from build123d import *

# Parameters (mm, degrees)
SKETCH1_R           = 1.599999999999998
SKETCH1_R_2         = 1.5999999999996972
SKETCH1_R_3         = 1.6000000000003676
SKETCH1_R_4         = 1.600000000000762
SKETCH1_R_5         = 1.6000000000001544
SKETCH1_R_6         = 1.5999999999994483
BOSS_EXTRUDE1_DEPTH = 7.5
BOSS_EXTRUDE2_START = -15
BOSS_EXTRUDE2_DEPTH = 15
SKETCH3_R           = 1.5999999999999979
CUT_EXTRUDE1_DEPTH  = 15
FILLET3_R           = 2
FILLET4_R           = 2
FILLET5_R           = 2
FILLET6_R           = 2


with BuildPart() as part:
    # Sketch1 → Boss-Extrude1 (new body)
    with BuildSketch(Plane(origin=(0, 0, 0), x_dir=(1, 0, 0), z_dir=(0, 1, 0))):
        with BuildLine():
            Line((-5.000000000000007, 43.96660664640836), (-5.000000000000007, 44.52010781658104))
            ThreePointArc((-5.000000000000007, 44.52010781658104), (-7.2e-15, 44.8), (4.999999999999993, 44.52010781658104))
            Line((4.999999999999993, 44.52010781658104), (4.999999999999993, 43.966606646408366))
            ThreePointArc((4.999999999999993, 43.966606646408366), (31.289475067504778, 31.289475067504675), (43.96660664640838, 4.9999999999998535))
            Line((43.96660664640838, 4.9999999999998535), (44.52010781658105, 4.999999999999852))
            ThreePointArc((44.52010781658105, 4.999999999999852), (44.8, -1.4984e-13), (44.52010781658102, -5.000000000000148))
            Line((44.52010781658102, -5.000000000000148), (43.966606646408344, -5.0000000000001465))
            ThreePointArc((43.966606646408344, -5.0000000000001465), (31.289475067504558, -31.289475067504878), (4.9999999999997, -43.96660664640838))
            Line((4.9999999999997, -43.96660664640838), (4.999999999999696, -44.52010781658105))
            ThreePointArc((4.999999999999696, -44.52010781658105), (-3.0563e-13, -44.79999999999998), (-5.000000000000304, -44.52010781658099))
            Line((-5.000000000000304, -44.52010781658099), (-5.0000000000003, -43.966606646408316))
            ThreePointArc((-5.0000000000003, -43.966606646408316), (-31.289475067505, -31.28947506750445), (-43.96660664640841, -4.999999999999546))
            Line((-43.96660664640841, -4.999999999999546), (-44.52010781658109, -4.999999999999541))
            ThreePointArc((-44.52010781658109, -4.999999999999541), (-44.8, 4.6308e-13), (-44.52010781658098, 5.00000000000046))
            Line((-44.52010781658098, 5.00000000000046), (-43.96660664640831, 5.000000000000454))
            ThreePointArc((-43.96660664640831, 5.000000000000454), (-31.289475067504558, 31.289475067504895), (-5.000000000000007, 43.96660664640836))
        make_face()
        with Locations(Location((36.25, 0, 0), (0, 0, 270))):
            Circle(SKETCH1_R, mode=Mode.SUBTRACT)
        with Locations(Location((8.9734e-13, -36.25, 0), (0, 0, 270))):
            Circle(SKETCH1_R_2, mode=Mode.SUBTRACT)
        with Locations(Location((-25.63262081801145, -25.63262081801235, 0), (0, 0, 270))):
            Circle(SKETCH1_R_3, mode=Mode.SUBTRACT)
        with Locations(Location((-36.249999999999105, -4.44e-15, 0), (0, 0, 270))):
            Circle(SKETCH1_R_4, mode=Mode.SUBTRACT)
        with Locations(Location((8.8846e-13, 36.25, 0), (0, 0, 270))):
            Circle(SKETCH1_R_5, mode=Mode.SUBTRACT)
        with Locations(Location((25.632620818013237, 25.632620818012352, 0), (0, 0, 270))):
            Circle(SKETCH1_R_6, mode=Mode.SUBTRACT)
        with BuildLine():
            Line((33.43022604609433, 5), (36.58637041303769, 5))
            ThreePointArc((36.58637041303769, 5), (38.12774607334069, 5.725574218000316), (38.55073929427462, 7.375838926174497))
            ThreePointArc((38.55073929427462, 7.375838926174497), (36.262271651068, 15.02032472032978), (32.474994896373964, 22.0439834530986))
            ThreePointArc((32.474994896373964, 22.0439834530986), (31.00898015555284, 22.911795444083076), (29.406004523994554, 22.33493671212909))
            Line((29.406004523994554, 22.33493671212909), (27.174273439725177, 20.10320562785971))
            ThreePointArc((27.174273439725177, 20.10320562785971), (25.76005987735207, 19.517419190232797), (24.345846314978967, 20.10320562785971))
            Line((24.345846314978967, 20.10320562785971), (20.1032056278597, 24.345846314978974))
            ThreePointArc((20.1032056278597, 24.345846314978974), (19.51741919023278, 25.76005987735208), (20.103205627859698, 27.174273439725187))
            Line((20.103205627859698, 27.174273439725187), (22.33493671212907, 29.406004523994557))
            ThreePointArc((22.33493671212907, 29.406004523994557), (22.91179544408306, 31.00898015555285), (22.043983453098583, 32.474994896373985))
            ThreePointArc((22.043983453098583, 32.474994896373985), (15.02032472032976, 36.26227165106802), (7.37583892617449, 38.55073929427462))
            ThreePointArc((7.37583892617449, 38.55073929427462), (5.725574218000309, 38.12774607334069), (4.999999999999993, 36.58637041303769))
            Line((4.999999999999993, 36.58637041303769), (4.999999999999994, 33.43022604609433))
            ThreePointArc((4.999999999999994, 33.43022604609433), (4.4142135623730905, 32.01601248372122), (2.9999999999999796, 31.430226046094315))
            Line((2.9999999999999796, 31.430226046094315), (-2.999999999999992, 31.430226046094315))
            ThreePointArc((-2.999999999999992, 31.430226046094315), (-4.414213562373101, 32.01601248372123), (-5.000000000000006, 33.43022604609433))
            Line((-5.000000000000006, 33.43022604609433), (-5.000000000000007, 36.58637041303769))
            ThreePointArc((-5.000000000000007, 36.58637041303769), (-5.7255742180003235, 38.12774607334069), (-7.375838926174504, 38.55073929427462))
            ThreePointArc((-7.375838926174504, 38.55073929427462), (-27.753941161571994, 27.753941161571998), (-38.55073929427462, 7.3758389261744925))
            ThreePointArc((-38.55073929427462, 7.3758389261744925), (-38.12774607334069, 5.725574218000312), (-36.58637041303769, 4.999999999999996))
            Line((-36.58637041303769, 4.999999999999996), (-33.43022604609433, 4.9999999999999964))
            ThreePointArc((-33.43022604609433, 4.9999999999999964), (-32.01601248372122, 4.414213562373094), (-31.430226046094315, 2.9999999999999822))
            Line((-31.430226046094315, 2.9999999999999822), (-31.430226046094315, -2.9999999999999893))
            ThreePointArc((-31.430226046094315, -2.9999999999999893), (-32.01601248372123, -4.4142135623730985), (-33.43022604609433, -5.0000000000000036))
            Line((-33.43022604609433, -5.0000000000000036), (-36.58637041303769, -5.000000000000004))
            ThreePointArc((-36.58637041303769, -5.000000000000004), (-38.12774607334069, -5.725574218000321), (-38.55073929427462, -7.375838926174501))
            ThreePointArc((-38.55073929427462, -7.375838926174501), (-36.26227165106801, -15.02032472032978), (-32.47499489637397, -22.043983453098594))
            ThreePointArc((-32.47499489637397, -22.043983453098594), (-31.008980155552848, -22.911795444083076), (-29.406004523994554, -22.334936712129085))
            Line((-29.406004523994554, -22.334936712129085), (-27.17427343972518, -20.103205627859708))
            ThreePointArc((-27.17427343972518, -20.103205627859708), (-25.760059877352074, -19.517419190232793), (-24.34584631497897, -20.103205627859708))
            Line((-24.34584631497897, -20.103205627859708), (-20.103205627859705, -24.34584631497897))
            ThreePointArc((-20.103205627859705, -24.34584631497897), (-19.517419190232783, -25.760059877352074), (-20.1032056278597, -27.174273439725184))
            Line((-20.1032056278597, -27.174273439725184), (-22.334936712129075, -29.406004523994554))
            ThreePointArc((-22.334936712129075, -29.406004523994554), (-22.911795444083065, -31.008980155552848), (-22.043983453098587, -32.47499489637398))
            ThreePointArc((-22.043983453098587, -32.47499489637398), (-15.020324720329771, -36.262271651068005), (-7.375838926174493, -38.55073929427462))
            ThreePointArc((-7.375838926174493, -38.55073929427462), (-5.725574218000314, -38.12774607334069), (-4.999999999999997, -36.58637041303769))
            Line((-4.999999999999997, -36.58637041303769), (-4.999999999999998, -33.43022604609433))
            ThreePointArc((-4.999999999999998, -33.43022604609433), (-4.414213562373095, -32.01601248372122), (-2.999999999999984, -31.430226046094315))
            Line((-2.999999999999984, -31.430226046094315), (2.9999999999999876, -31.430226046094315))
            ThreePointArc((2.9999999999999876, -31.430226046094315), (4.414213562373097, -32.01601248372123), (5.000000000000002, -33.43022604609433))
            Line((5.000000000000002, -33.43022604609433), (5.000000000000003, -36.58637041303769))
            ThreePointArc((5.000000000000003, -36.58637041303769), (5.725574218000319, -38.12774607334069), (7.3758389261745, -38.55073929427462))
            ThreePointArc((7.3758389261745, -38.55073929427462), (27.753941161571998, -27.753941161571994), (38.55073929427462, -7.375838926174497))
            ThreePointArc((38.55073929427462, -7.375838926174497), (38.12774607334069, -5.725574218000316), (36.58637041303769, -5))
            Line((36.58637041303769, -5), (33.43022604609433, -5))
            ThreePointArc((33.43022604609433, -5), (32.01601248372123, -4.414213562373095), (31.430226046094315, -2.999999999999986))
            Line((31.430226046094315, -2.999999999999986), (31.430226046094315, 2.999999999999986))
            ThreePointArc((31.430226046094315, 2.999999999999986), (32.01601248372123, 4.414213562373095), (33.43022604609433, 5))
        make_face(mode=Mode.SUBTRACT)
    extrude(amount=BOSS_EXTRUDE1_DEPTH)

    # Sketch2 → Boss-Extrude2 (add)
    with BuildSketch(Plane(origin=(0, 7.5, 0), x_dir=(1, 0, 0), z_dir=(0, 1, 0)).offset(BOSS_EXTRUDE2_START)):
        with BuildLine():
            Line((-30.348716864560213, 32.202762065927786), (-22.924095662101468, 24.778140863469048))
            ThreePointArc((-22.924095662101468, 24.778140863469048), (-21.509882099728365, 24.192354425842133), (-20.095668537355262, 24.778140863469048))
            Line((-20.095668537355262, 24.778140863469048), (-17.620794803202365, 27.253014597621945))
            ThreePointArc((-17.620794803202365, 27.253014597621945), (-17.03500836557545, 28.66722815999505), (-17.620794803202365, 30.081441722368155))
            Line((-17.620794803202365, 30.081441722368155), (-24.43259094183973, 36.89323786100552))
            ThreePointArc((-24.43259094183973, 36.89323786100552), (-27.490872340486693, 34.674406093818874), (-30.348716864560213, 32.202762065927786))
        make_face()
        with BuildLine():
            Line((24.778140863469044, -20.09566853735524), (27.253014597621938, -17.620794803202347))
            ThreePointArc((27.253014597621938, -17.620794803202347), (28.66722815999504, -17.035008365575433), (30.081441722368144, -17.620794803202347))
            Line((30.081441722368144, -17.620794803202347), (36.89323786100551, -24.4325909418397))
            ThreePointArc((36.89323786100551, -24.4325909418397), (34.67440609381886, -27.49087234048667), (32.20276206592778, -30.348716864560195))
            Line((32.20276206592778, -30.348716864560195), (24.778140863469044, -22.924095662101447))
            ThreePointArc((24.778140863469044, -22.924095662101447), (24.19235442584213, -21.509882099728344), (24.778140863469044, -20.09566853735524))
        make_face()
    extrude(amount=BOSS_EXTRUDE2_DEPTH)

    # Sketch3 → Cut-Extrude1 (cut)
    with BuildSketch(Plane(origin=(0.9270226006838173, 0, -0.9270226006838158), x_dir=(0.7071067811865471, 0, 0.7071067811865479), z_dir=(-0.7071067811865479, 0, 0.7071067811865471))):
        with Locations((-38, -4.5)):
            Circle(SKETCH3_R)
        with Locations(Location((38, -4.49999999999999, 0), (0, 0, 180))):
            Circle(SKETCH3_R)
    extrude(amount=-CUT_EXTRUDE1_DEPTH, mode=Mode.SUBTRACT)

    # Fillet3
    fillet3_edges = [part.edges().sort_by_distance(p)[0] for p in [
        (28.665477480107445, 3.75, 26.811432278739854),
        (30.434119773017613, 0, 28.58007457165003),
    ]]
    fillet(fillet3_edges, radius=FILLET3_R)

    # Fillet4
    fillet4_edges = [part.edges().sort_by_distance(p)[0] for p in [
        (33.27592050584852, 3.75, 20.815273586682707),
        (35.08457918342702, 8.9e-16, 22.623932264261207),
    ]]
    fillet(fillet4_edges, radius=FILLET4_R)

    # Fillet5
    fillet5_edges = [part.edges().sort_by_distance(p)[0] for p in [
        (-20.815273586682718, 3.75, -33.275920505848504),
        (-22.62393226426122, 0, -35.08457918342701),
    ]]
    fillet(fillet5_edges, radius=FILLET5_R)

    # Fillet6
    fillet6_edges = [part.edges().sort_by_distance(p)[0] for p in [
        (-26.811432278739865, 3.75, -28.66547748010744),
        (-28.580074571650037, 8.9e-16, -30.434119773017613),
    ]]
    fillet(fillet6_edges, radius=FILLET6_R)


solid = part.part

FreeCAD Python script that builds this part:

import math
import FreeCAD as App
import Part
import Sketcher


def edges_at(feature, points):
    """Names of the edges that pass closest to the given points."""
    edges = feature.Shape.Edges
    near = lambda p: min(range(len(edges)), key=lambda i: edges[i].distToShape(Part.Vertex(*p))[0])
    return sorted({f"Edge{near(p) + 1}" for p in points})

doc = App.newDocument("Part")
body = doc.addObject("PartDesign::Body", "Body")

# Sketch on XZ plane
sketch1 = doc.addObject("Sketcher::SketchObject", "Sketch")
body.addObject(sketch1)
sketch1.AttachmentSupport = (doc.XZ_Plane, [""])
sketch1.MapMode = "FlatFace"
sketch1.addGeometry([
    Part.LineSegment(App.Vector(-5, -44.5, 0), App.Vector(-5, -44, 0)),  # 0
    Part.ArcOfCircle(Part.Circle(App.Vector(0, 0, 0), App.Vector(0, 0, 1), 44.2), math.radians(-174), math.radians(-96)),  # 1
    Part.LineSegment(App.Vector(-44, -5, 0), App.Vector(-44.5, -5, 0)),  # 2
    Part.ArcOfCircle(Part.Circle(App.Vector(0, 0, 0), App.Vector(0, 0, 1), 44.8), math.radians(173.59), math.radians(186.41)),  # 3
    Part.LineSegment(App.Vector(-44.5, 5, 0), App.Vector(-44, 5, 0)),  # 4
    Part.ArcOfCircle(Part.Circle(App.Vector(0, 0, 0), App.Vector(0, 0, 1), 44.2), math.radians(96), math.radians(174)),  # 5
    Part.LineSegment(App.Vector(-5, 44, 0), App.Vector(-5, 44.5, 0)),  # 6
    Part.ArcOfCircle(Part.Circle(App.Vector(0, 0, 0), App.Vector(0, 0, 1), 44.8), math.radians(83.59), math.radians(96.41)),  # 7
    Part.LineSegment(App.Vector(5, 44.5, 0), App.Vector(5, 44, 0)),  # 8
    Part.ArcOfCircle(Part.Circle(App.Vector(0, 0, 0), App.Vector(0, 0, 1), 44.2), math.radians(6), math.radians(84)),  # 9
    Part.LineSegment(App.Vector(44, 5, 0), App.Vector(44.5, 5, 0)),  # 10
    Part.ArcOfCircle(Part.Circle(App.Vector(0, 0, 0), App.Vector(0, 0, 1), 44.8), math.radians(-6.41), math.radians(6.41)),  # 11
    Part.LineSegment(App.Vector(44.5, -5, 0), App.Vector(44, -5, 0)),  # 12
    Part.ArcOfCircle(Part.Circle(App.Vector(0, 0, 0), App.Vector(0, 0, 1), 44.2), math.radians(-84), math.radians(-6)),  # 13
    Part.LineSegment(App.Vector(5, -44, 0), App.Vector(5, -44.5, 0)),  # 14
    Part.ArcOfCircle(Part.Circle(App.Vector(0, 0, 0), App.Vector(0, 0, 1), 44.8), math.radians(-96.41), math.radians(-83.59)),  # 15
    Part.Circle(App.Vector(0, 36.2, 0), App.Vector(0, 0, 1), 1.6),  # 16
    Part.Circle(App.Vector(-25.6, 25.6, 0), App.Vector(0, 0, 1), 1.6),  # 17
    Part.Circle(App.Vector(-36.2, 0, 0), App.Vector(0, 0, 1), 1.6),  # 18
    Part.Circle(App.Vector(36.2, 0, 0), App.Vector(0, 0, 1), 1.6),  # 19
    Part.Circle(App.Vector(25.6, -25.6, 0), App.Vector(0, 0, 1), 1.6),  # 20
    Part.Circle(App.Vector(0, -36.2, 0), App.Vector(0, 0, 1), 1.6),  # 21
    Part.ArcOfCircle(Part.Circle(App.Vector(33.4, -3, 0), App.Vector(0, 0, 1), 2), math.radians(180), math.radians(270)),  # 22
    Part.LineSegment(App.Vector(31.4, -3, 0), App.Vector(31.4, 3, 0)),  # 23
    Part.ArcOfCircle(Part.Circle(App.Vector(33.4, 3, 0), App.Vector(0, 0, 1), 2), math.radians(90), math.radians(180)),  # 24
    Part.LineSegment(App.Vector(33.4, 5, 0), App.Vector(36.6, 5, 0)),  # 25
    Part.ArcOfCircle(Part.Circle(App.Vector(36.6, 7, 0), App.Vector(0, 0, 1), 2), math.radians(-90), math.radians(11)),  # 26
    Part.ArcOfCircle(Part.Circle(App.Vector(0, 0, 0), App.Vector(0, 0, 1), 39.2), math.radians(11), math.radians(79)),  # 27
    Part.ArcOfCircle(Part.Circle(App.Vector(7, 36.6, 0), App.Vector(0, 0, 1), 2), math.radians(79), math.radians(180)),  # 28
    Part.LineSegment(App.Vector(5, 36.6, 0), App.Vector(5, 33.4, 0)),  # 29
    Part.ArcOfCircle(Part.Circle(App.Vector(3, 33.4, 0), App.Vector(0, 0, 1), 2), math.radians(-90), math.radians(0)),  # 30
    Part.LineSegment(App.Vector(3, 31.4, 0), App.Vector(-3, 31.4, 0)),  # 31
    Part.ArcOfCircle(Part.Circle(App.Vector(-3, 33.4, 0), App.Vector(0, 0, 1), 2), math.radians(180), math.radians(270)),  # 32
    Part.LineSegment(App.Vector(-5, 33.4, 0), App.Vector(-5, 36.6, 0)),  # 33
    Part.ArcOfCircle(Part.Circle(App.Vector(-7, 36.6, 0), App.Vector(0, 0, 1), 2), math.radians(0), math.radians(101)),  # 34
    Part.ArcOfCircle(Part.Circle(App.Vector(0, 0, 0), App.Vector(0, 0, 1), 39.2), math.radians(101), math.radians(124)),  # 35
    Part.ArcOfCircle(Part.Circle(App.Vector(-20.9, 30.8, 0), App.Vector(0, 0, 1), 2), math.radians(124), math.radians(225)),  # 36
    Part.LineSegment(App.Vector(-22.3, 29.4, 0), App.Vector(-20.1, 27.2, 0)),  # 37
    Part.ArcOfCircle(Part.Circle(App.Vector(-21.5, 25.8, 0), App.Vector(0, 0, 1), 2), math.radians(-45), math.radians(45)),  # 38
    Part.LineSegment(App.Vector(-20.1, 24.3, 0), App.Vector(-24.3, 20.1, 0)),  # 39
    Part.ArcOfCircle(Part.Circle(App.Vector(-25.8, 21.5, 0), App.Vector(0, 0, 1), 2), math.radians(-135), math.radians(-45)),  # 40
    Part.LineSegment(App.Vector(-27.2, 20.1, 0), App.Vector(-29.4, 22.3, 0)),  # 41
    Part.ArcOfCircle(Part.Circle(App.Vector(-30.8, 20.9, 0), App.Vector(0, 0, 1), 2), math.radians(45), math.radians(146)),  # 42
    Part.ArcOfCircle(Part.Circle(App.Vector(0, 0, 0), App.Vector(0, 0, 1), 39.2), math.radians(146), math.radians(169)),  # 43
    Part.ArcOfCircle(Part.Circle(App.Vector(-36.6, 7, 0), App.Vector(0, 0, 1), 2), math.radians(169), math.radians(270)),  # 44
    Part.LineSegment(App.Vector(-36.6, 5, 0), App.Vector(-33.4, 5, 0)),  # 45
    Part.ArcOfCircle(Part.Circle(App.Vector(-33.4, 3, 0), App.Vector(0, 0, 1), 2), math.radians(0), math.radians(90)),  # 46
    Part.LineSegment(App.Vector(-31.4, 3, 0), App.Vector(-31.4, -3, 0)),  # 47
    Part.ArcOfCircle(Part.Circle(App.Vector(-33.4, -3, 0), App.Vector(0, 0, 1), 2), math.radians(-90), math.radians(0)),  # 48
    Part.LineSegment(App.Vector(-33.4, -5, 0), App.Vector(-36.6, -5, 0)),  # 49
    Part.ArcOfCircle(Part.Circle(App.Vector(-36.6, -7, 0), App.Vector(0, 0, 1), 2), math.radians(90), math.radians(191)),  # 50
    Part.ArcOfCircle(Part.Circle(App.Vector(0, 0, 0), App.Vector(0, 0, 1), 39.2), math.radians(-169), math.radians(-101)),  # 51
    Part.ArcOfCircle(Part.Circle(App.Vector(-7, -36.6, 0), App.Vector(0, 0, 1), 2), math.radians(-101), math.radians(0)),  # 52
    Part.LineSegment(App.Vector(-5, -36.6, 0), App.Vector(-5, -33.4, 0)),  # 53
    Part.ArcOfCircle(Part.Circle(App.Vector(-3, -33.4, 0), App.Vector(0, 0, 1), 2), math.radians(90), math.radians(180)),  # 54
    Part.LineSegment(App.Vector(-3, -31.4, 0), App.Vector(3, -31.4, 0)),  # 55
    Part.ArcOfCircle(Part.Circle(App.Vector(3, -33.4, 0), App.Vector(0, 0, 1), 2), math.radians(0), math.radians(90)),  # 56
    Part.LineSegment(App.Vector(5, -33.4, 0), App.Vector(5, -36.6, 0)),  # 57
    Part.ArcOfCircle(Part.Circle(App.Vector(7, -36.6, 0), App.Vector(0, 0, 1), 2), math.radians(180), math.radians(281)),  # 58
    Part.ArcOfCircle(Part.Circle(App.Vector(0, 0, 0), App.Vector(0, 0, 1), 39.2), math.radians(-79), math.radians(-56)),  # 59
    Part.ArcOfCircle(Part.Circle(App.Vector(20.9, -30.8, 0), App.Vector(0, 0, 1), 2), math.radians(-56), math.radians(45)),  # 60
    Part.LineSegment(App.Vector(22.3, -29.4, 0), App.Vector(20.1, -27.2, 0)),  # 61
    Part.ArcOfCircle(Part.Circle(App.Vector(21.5, -25.8, 0), App.Vector(0, 0, 1), 2), math.radians(135), math.radians(225)),  # 62
    Part.LineSegment(App.Vector(20.1, -24.3, 0), App.Vector(24.3, -20.1, 0)),  # 63
    Part.ArcOfCircle(Part.Circle(App.Vector(25.8, -21.5, 0), App.Vector(0, 0, 1), 2), math.radians(45), math.radians(135)),  # 64
    Part.LineSegment(App.Vector(27.2, -20.1, 0), App.Vector(29.4, -22.3, 0)),  # 65
    Part.ArcOfCircle(Part.Circle(App.Vector(30.8, -20.9, 0), App.Vector(0, 0, 1), 2), math.radians(-135), math.radians(-34)),  # 66
    Part.ArcOfCircle(Part.Circle(App.Vector(0, 0, 0), App.Vector(0, 0, 1), 39.2), math.radians(-34), math.radians(-11)),  # 67
    Part.ArcOfCircle(Part.Circle(App.Vector(36.6, -7, 0), App.Vector(0, 0, 1), 2), math.radians(-11), math.radians(90)),  # 68
    Part.LineSegment(App.Vector(36.6, -5, 0), App.Vector(33.4, -5, 0)),  # 69
], False)
sketch1.addConstraint([
    Sketcher.Constraint("Coincident", 0, 2, 1, 2),
    Sketcher.Constraint("Coincident", 1, 1, 2, 1),
    Sketcher.Constraint("Coincident", 2, 2, 3, 2),
    Sketcher.Constraint("Coincident", 3, 1, 4, 1),
    Sketcher.Constraint("Coincident", 4, 2, 5, 2),
    Sketcher.Constraint("Coincident", 5, 1, 6, 1),
    Sketcher.Constraint("Coincident", 6, 2, 7, 2),
    Sketcher.Constraint("Coincident", 7, 1, 8, 1),
    Sketcher.Constraint("Coincident", 8, 2, 9, 2),
    Sketcher.Constraint("Coincident", 9, 1, 10, 1),
    Sketcher.Constraint("Coincident", 10, 2, 11, 2),
    Sketcher.Constraint("Coincident", 11, 1, 12, 1),
    Sketcher.Constraint("Coincident", 12, 2, 13, 2),
    Sketcher.Constraint("Coincident", 13, 1, 14, 1),
    Sketcher.Constraint("Coincident", 14, 2, 15, 2),
    Sketcher.Constraint("Coincident", 15, 1, 0, 1),
    Sketcher.Constraint("Tangent", 22, 1, 23, 1),
    Sketcher.Constraint("Tangent", 23, 2, 24, 2),
    Sketcher.Constraint("Tangent", 24, 1, 25, 1),
    Sketcher.Constraint("Tangent", 25, 2, 26, 1),
    Sketcher.Constraint("Tangent", 26, 2, 27, 1),
    Sketcher.Constraint("Tangent", 27, 2, 28, 1),
    Sketcher.Constraint("Tangent", 28, 2, 29, 1),
    Sketcher.Constraint("Tangent", 29, 2, 30, 2),
    Sketcher.Constraint("Tangent", 30, 1, 31, 1),
    Sketcher.Constraint("Tangent", 31, 2, 32, 2),
    Sketcher.Constraint("Tangent", 32, 1, 33, 1),
    Sketcher.Constraint("Tangent", 33, 2, 34, 1),
    Sketcher.Constraint("Tangent", 34, 2, 35, 1),
    Sketcher.Constraint("Tangent", 35, 2, 36, 1),
    Sketcher.Constraint("Tangent", 36, 2, 37, 1),
    Sketcher.Constraint("Tangent", 37, 2, 38, 2),
    Sketcher.Constraint("Tangent", 38, 1, 39, 1),
    Sketcher.Constraint("Tangent", 39, 2, 40, 2),
    Sketcher.Constraint("Tangent", 40, 1, 41, 1),
    Sketcher.Constraint("Tangent", 41, 2, 42, 1),
    Sketcher.Constraint("Tangent", 42, 2, 43, 1),
    Sketcher.Constraint("Tangent", 43, 2, 44, 1),
    Sketcher.Constraint("Tangent", 44, 2, 45, 1),
    Sketcher.Constraint("Tangent", 45, 2, 46, 2),
    Sketcher.Constraint("Tangent", 46, 1, 47, 1),
    Sketcher.Constraint("Tangent", 47, 2, 48, 2),
    Sketcher.Constraint("Tangent", 48, 1, 49, 1),
    Sketcher.Constraint("Tangent", 49, 2, 50, 1),
    Sketcher.Constraint("Tangent", 50, 2, 51, 1),
    Sketcher.Constraint("Tangent", 51, 2, 52, 1),
    Sketcher.Constraint("Tangent", 52, 2, 53, 1),
    Sketcher.Constraint("Tangent", 53, 2, 54, 2),
    Sketcher.Constraint("Tangent", 54, 1, 55, 1),
    Sketcher.Constraint("Tangent", 55, 2, 56, 2),
    Sketcher.Constraint("Tangent", 56, 1, 57, 1),
    Sketcher.Constraint("Tangent", 57, 2, 58, 1),
    Sketcher.Constraint("Tangent", 58, 2, 59, 1),
    Sketcher.Constraint("Tangent", 59, 2, 60, 1),
    Sketcher.Constraint("Tangent", 60, 2, 61, 1),
    Sketcher.Constraint("Tangent", 61, 2, 62, 2),
    Sketcher.Constraint("Tangent", 62, 1, 63, 1),
    Sketcher.Constraint("Tangent", 63, 2, 64, 2),
    Sketcher.Constraint("Tangent", 64, 1, 65, 1),
    Sketcher.Constraint("Tangent", 65, 2, 66, 1),
    Sketcher.Constraint("Tangent", 66, 2, 67, 1),
    Sketcher.Constraint("Tangent", 67, 2, 68, 1),
    Sketcher.Constraint("Tangent", 68, 2, 69, 1),
    Sketcher.Constraint("Tangent", 69, 2, 22, 2),
    Sketcher.Constraint("Vertical", 0),
    Sketcher.Constraint("Horizontal", 2),
    Sketcher.Constraint("Horizontal", 4),
    Sketcher.Constraint("Vertical", 6),
    Sketcher.Constraint("Vertical", 8),
    Sketcher.Constraint("Horizontal", 10),
    Sketcher.Constraint("Horizontal", 12),
    Sketcher.Constraint("Vertical", 14),
    Sketcher.Constraint("Vertical", 23),
    Sketcher.Constraint("Horizontal", 25),
    Sketcher.Constraint("Vertical", 29),
    Sketcher.Constraint("Horizontal", 31),
    Sketcher.Constraint("Vertical", 33),
    Sketcher.Constraint("Horizontal", 45),
    Sketcher.Constraint("Vertical", 47),
    Sketcher.Constraint("Horizontal", 49),
    Sketcher.Constraint("Vertical", 53),
    Sketcher.Constraint("Horizontal", 55),
    Sketcher.Constraint("Vertical", 57),
    Sketcher.Constraint("Horizontal", 69),
    Sketcher.Constraint("Coincident", 1, 3, -1, 1),
    Sketcher.Constraint("Coincident", 3, 3, -1, 1),
    Sketcher.Constraint("Coincident", 5, 3, -1, 1),
    Sketcher.Constraint("Coincident", 7, 3, -1, 1),
    Sketcher.Constraint("Coincident", 9, 3, -1, 1),
    Sketcher.Constraint("Coincident", 11, 3, -1, 1),
    Sketcher.Constraint("Coincident", 13, 3, -1, 1),
    Sketcher.Constraint("Coincident", 15, 3, -1, 1),
    Sketcher.Constraint("Coincident", 27, 3, -1, 1),
    Sketcher.Constraint("Coincident", 35, 3, -1, 1),
    Sketcher.Constraint("Coincident", 43, 3, -1, 1),
    Sketcher.Constraint("Coincident", 51, 3, -1, 1),
    Sketcher.Constraint("Coincident", 59, 3, -1, 1),
    Sketcher.Constraint("Coincident", 67, 3, -1, 1),
    Sketcher.Constraint("Equal", 1, 5),
    Sketcher.Constraint("Equal", 3, 7),
    Sketcher.Constraint("Equal", 5, 9),
    Sketcher.Constraint("Equal", 7, 11),
    Sketcher.Constraint("Equal", 9, 13),
    Sketcher.Constraint("Equal", 11, 15),
    Sketcher.Constraint("Equal", 16, 17),
    Sketcher.Constraint("Equal", 17, 18),
    Sketcher.Constraint("Equal", 18, 19),
    Sketcher.Constraint("Equal", 19, 20),
    Sketcher.Constraint("Equal", 20, 21),
    Sketcher.Constraint("Equal", 22, 24),
    Sketcher.Constraint("Equal", 24, 26),
    Sketcher.Constraint("Equal", 26, 28),
    Sketcher.Constraint("Equal", 28, 30),
    Sketcher.Constraint("Equal", 30, 32),
    Sketcher.Constraint("Equal", 32, 34),
    Sketcher.Constraint("Equal", 27, 35),
    Sketcher.Constraint("Equal", 34, 36),
    Sketcher.Constraint("Equal", 36, 38),
    Sketcher.Constraint("Equal", 38, 40),
    Sketcher.Constraint("Equal", 40, 42),
    Sketcher.Constraint("Equal", 35, 43),
    Sketcher.Constraint("Equal", 42, 44),
    Sketcher.Constraint("Equal", 44, 46),
    Sketcher.Constraint("Equal", 46, 48),
    Sketcher.Constraint("Equal", 48, 50),
    Sketcher.Constraint("Equal", 43, 51),
    Sketcher.Constraint("Equal", 50, 52),
    Sketcher.Constraint("Equal", 52, 54),
    Sketcher.Constraint("Equal", 54, 56),
    Sketcher.Constraint("Equal", 56, 58),
    Sketcher.Constraint("Equal", 51, 59),
    Sketcher.Constraint("Equal", 58, 60),
    Sketcher.Constraint("Equal", 60, 62),
    Sketcher.Constraint("Equal", 62, 64),
    Sketcher.Constraint("Equal", 64, 66),
    Sketcher.Constraint("Equal", 59, 67),
    Sketcher.Constraint("Equal", 66, 68),
    Sketcher.Constraint("Symmetric", 18, 3, 19, 3, -1, 1),
    Sketcher.Constraint("Symmetric", 17, 3, 20, 3, -1, 1),
    Sketcher.Constraint("Symmetric", 16, 3, 21, 3, -1, 1),
    Sketcher.Constraint("Symmetric", 22, 3, 46, 3, -1, 1),
    Sketcher.Constraint("Symmetric", 30, 3, 54, 3, -1, 1),
    Sketcher.Constraint("Symmetric", 38, 3, 62, 3, -1, 1),
    Sketcher.Constraint("Symmetric", 40, 3, 64, 3, -1, 1),
    Sketcher.Constraint("PointOnObject", 16, 3, -2),
    Sketcher.Constraint("PointOnObject", 18, 3, -1),
    Sketcher.Constraint("Perpendicular", 37, 39),
    Sketcher.Constraint("Perpendicular", 39, 41),
    Sketcher.Constraint("Parallel", 41, 61),
    Sketcher.Constraint("Perpendicular", 63, 65),
    Sketcher.Constraint("Horizontal", 28, 3, 34, 3),
    Sketcher.Constraint("Horizontal", 26, 3, 44, 3),
    Sketcher.Constraint("Horizontal", 22, 3, 48, 3),
    Sketcher.Constraint("Horizontal", 52, 3, 58, 3),
    Sketcher.Constraint("Horizontal", 6, 2, 7, 1),
    Sketcher.Constraint("Horizontal", 4, 2, 9, 1),
    Sketcher.Constraint("Horizontal", 2, 2, 11, 1),
    Sketcher.Constraint("Horizontal", 0, 2, 13, 1),
    Sketcher.Constraint("Horizontal", 10, 2, 24, 1),
    Sketcher.Constraint("Horizontal", 39, 2, 40, 1),
    Sketcher.Constraint("Horizontal", 12, 2, 48, 1),
    Sketcher.Constraint("Vertical", 0, 2, 5, 1),
    Sketcher.Constraint("Vertical", 14, 2, 28, 2),
    Sketcher.Constraint("Equal", 55, 23),
    Sketcher.Constraint("Equal", 69, 29),
    Sketcher.Constraint("Equal", 37, 41),
    Sketcher.Constraint("Radius", 22, 2.0),
    Sketcher.Constraint("Diameter", 16, 3.2),
    Sketcher.Constraint("Radius", 3, 44.8),
    Sketcher.Constraint("DistanceX", 31, 2, 31, 1, 6.0),
    Sketcher.Constraint("Radius", 1, 44.25),
    Sketcher.Constraint("Radius", 27, 39.25),
    Sketcher.Constraint("Distance", 39, 6.0),
    Sketcher.Constraint("DistanceY", -1, 1, 16, 3, 36.25),
    Sketcher.Constraint("DistanceX", 18, 3, -1, 1, 36.25),
    Sketcher.Constraint("DistanceX", 25, 1, 25, 2, 3.156144),
    Sketcher.Constraint("DistanceX", 17, 3, -1, 1, 25.632621),
    Sketcher.Constraint("DistanceY", -1, 1, 17, 3, 25.632621),
    Sketcher.Constraint("DistanceX", 38, 3, -1, 1, 21.517419),
])
pad1 = doc.addObject("PartDesign::Pad", "Pad")
body.addObject(pad1)
pad1.Profile = sketch1
pad1.Length = 7.5
pad1.Reversed = True

# Sketch on XZ plane
sketch2 = doc.addObject("Sketcher::SketchObject", "Sketch001")
body.addObject(sketch2)
sketch2.AttachmentSupport = (doc.XZ_Plane, [""])
sketch2.MapMode = "FlatFace"
sketch2.AttachmentOffset = App.Placement(App.Vector(0, 0, 7.5), App.Rotation())
sketch2.addGeometry([
    Part.LineSegment(App.Vector(-30.3, -32.2, 0), App.Vector(-22.9, -24.8, 0)),  # 0
    Part.ArcOfCircle(Part.Circle(App.Vector(-21.5, -26.2, 0), App.Vector(0, 0, 1), 2), math.radians(45), math.radians(135)),  # 1
    Part.LineSegment(App.Vector(-20.1, -24.8, 0), App.Vector(-17.6, -27.3, 0)),  # 2
    Part.ArcOfCircle(Part.Circle(App.Vector(-19, -28.7, 0), App.Vector(0, 0, 1), 2), math.radians(-45), math.radians(45)),  # 3
    Part.LineSegment(App.Vector(-17.6, -30.1, 0), App.Vector(-24.4, -36.9, 0)),  # 4
    Part.ArcOfCircle(Part.Circle(App.Vector(0, 0, 0), App.Vector(0, 0, 1), 44.2), math.radians(-133.3), math.radians(-123.51)),  # 5
    Part.LineSegment(App.Vector(27.3, 17.6, 0), App.Vector(24.8, 20.1, 0)),  # 6
    Part.ArcOfCircle(Part.Circle(App.Vector(26.2, 21.5, 0), App.Vector(0, 0, 1), 2), math.radians(135), math.radians(225)),  # 7
    Part.LineSegment(App.Vector(24.8, 22.9, 0), App.Vector(32.2, 30.3, 0)),  # 8
    Part.ArcOfCircle(Part.Circle(App.Vector(0, 0, 0), App.Vector(0, 0, 1), 44.2), math.radians(33.51), math.radians(43.3)),  # 9
    Part.LineSegment(App.Vector(36.9, 24.4, 0), App.Vector(30.1, 17.6, 0)),  # 10
    Part.ArcOfCircle(Part.Circle(App.Vector(28.7, 19, 0), App.Vector(0, 0, 1), 2), math.radians(-135), math.radians(-45)),  # 11
], False)
sketch2.addConstraint([
    Sketcher.Constraint("Tangent", 0, 2, 1, 2),
    Sketcher.Constraint("Tangent", 1, 1, 2, 1),
    Sketcher.Constraint("Tangent", 2, 2, 3, 2),
    Sketcher.Constraint("Tangent", 3, 1, 4, 1),
    Sketcher.Constraint("Coincident", 4, 2, 5, 2),
    Sketcher.Constraint("Coincident", 5, 1, 0, 1),
    Sketcher.Constraint("Tangent", 6, 2, 7, 2),
    Sketcher.Constraint("Tangent", 7, 1, 8, 1),
    Sketcher.Constraint("Coincident", 8, 2, 9, 2),
    Sketcher.Constraint("Coincident", 9, 1, 10, 1),
    Sketcher.Constraint("Tangent", 10, 2, 11, 2),
    Sketcher.Constraint("Tangent", 11, 1, 6, 1),
    Sketcher.Constraint("Coincident", 5, 3, -1, 1),
    Sketcher.Constraint("Coincident", 9, 3, -1, 1),
    Sketcher.Constraint("Equal", 1, 3),
    Sketcher.Constraint("Equal", 3, 7),
    Sketcher.Constraint("Equal", 5, 9),
    Sketcher.Constraint("Equal", 7, 11),
    Sketcher.Constraint("Perpendicular", 0, 2),
    Sketcher.Constraint("Perpendicular", 2, 4),
    Sketcher.Constraint("Perpendicular", 4, 6),
    Sketcher.Constraint("Perpendicular", 6, 8),
    Sketcher.Constraint("Parallel", 8, 10),
    Sketcher.Constraint("Horizontal", 0, 2, 1, 1),
    Sketcher.Constraint("Equal", 2, 6),
    Sketcher.Constraint("Equal", 0, 8),
    Sketcher.Constraint("Equal", 4, 10),
    Sketcher.Constraint("Radius", 1, 2.0),
    Sketcher.Constraint("Radius", 5, 44.25),
    Sketcher.Constraint("Distance", 0, 10.5),
    Sketcher.Constraint("Distance", 2, 3.5),
    Sketcher.Constraint("DistanceX", 3, 3, -1, 1, 19.035008),
])
pad2 = doc.addObject("PartDesign::Pad", "Pad001")
body.addObject(pad2)
pad2.Profile = sketch2
pad2.Length = 15
pad2.Reversed = True

# Sketch on an angled plane
sketch3 = doc.addObject("Sketcher::SketchObject", "Sketch002")
body.addObject(sketch3)
sketch3.Placement = App.Placement(App.Vector(0.927023, 0, -0.927023), App.Rotation(App.Vector(0.707106781, 0, 0.707106781), App.Vector(0, 0.999999999, 0), App.Vector(-0.707106781, 0, 0.707106781), "ZXY"))
sketch3.addGeometry([
    Part.Circle(App.Vector(-38, -4.5, 0), App.Vector(0, 0, 1), 1.6),
    Part.Circle(App.Vector(38, -4.5, 0), App.Vector(0, 0, 1), 1.6),
], False)
sketch3.addConstraint([
    Sketcher.Constraint("Equal", 0, 1),
    Sketcher.Constraint("Symmetric", 0, 3, 1, 3, -2),
    Sketcher.Constraint("Diameter", 0, 3.2),
    Sketcher.Constraint("DistanceX", 0, 3, -1, 1, 38.0),
    Sketcher.Constraint("DistanceY", 0, 3, -1, 1, 4.5),
])
pocket1 = doc.addObject("PartDesign::Pocket", "Pocket")
body.addObject(pocket1)
pocket1.Profile = sketch3
pocket1.Length = 15
doc.recompute()

fillet = doc.addObject("PartDesign::Fillet", "Fillet")
body.addObject(fillet)
fillet.Base = (pocket1, edges_at(pocket1, [(28.665, 3.75, 26.811), (30.434, 0, 28.58)]))
fillet.Radius = 2
doc.recompute()

fillet2 = doc.addObject("PartDesign::Fillet", "Fillet001")
body.addObject(fillet2)
fillet2.Base = (fillet, edges_at(fillet, [(33.276, 3.75, 20.815), (35.085, 0, 22.624)]))
fillet2.Radius = 2
doc.recompute()

fillet3 = doc.addObject("PartDesign::Fillet", "Fillet002")
body.addObject(fillet3)
fillet3.Base = (fillet2, edges_at(fillet2, [(-20.815, 3.75, -33.276), (-22.624, 0, -35.085)]))
fillet3.Radius = 2
doc.recompute()

fillet4 = doc.addObject("PartDesign::Fillet", "Fillet003")
body.addObject(fillet4)
fillet4.Base = (fillet3, edges_at(fillet3, [(-26.811, 3.75, -28.665), (-28.58, 0, -30.434)]))
fillet4.Radius = 2

doc.recompute()
